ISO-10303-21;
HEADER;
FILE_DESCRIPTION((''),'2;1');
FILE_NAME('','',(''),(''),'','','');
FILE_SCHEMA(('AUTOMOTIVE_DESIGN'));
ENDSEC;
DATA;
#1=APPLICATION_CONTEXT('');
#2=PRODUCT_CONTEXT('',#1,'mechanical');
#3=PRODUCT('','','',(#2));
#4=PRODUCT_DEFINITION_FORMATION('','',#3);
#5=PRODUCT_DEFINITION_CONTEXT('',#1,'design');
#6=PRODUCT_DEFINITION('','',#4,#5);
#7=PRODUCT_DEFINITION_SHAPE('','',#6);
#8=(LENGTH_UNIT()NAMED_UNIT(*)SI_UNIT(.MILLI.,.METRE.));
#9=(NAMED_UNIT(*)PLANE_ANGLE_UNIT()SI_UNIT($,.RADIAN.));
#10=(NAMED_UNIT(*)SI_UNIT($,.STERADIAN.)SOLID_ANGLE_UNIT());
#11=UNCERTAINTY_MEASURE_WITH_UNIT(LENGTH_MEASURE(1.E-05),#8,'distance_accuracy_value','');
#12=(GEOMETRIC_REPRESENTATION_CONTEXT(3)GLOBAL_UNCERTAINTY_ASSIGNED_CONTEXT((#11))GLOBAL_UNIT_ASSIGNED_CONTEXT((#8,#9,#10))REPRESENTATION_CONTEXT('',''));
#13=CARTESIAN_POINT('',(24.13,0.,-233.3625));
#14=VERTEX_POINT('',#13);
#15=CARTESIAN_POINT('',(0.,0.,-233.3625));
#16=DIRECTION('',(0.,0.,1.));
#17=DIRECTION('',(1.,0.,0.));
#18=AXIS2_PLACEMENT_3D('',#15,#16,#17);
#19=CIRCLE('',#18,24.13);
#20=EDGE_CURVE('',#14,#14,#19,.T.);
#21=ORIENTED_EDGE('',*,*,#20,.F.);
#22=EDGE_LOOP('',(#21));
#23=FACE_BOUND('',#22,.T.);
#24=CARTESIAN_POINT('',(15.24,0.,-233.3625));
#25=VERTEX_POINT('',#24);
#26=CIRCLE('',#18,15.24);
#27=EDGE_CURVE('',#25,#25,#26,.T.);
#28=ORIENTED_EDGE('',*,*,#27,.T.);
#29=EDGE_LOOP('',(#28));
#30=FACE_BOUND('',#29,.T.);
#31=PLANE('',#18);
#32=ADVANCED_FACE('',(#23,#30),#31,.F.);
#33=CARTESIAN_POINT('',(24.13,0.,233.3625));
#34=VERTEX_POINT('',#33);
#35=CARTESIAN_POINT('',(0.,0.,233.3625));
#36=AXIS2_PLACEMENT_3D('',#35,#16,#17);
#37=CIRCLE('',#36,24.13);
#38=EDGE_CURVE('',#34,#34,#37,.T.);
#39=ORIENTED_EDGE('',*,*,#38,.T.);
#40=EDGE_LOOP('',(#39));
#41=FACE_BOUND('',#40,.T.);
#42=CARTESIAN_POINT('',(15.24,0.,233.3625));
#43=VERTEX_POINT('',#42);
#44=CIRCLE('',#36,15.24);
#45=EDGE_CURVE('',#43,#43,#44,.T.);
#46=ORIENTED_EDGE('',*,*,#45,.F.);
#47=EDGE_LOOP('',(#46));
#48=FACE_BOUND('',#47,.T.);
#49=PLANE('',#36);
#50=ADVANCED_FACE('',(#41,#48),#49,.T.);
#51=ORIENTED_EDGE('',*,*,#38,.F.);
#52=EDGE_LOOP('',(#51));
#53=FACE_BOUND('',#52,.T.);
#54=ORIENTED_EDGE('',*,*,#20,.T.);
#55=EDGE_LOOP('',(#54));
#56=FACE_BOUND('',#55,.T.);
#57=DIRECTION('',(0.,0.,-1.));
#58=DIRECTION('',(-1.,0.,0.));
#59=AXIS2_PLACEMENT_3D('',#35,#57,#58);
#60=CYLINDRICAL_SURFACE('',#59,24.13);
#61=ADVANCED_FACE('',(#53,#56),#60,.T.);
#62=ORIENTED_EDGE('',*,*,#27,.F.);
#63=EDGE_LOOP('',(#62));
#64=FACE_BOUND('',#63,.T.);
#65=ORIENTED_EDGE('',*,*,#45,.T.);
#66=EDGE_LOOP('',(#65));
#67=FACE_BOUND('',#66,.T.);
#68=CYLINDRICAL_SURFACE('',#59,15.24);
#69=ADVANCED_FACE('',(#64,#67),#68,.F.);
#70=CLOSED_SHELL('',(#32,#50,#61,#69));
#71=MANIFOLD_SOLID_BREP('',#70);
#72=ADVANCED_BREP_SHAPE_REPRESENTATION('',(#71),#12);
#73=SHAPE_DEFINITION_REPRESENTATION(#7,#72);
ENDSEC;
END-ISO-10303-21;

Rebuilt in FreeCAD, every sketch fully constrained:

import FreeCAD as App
import Part
import Sketcher

V = App.Vector
Q = App.Units.Quantity

doc = App.newDocument("Part")
body = doc.addObject("PartDesign::Body", "Body")

sketch1 = doc.addObject("Sketcher::SketchObject", "Sketch")
body.addObject(sketch1)
sketch1.AttachmentSupport = (doc.XY_Plane, [""])
sketch1.MapMode = "FlatFace"
sketch1.addGeometry([
    Part.Circle(V(0, 0, 0), V(0, 0, 1), 24),
    Part.Circle(V(0, 0, 0), V(0, 0, 1), 15),
], False)
sketch1.addConstraint([
    Sketcher.Constraint("Coincident", 0, 3, -1, 1),
    Sketcher.Constraint("Coincident", 1, 3, -1, 1),
    Sketcher.Constraint("Diameter", 0, Q("1.9 in")),
    Sketcher.Constraint("Diameter", 1, Q("1.2 in")),
])
pad1 = doc.addObject("PartDesign::Pad", "Pad")
body.addObject(pad1)
pad1.Profile = sketch1
pad1.Length = Q("18.375 in")
pad1.Midplane = True

doc.recompute()
